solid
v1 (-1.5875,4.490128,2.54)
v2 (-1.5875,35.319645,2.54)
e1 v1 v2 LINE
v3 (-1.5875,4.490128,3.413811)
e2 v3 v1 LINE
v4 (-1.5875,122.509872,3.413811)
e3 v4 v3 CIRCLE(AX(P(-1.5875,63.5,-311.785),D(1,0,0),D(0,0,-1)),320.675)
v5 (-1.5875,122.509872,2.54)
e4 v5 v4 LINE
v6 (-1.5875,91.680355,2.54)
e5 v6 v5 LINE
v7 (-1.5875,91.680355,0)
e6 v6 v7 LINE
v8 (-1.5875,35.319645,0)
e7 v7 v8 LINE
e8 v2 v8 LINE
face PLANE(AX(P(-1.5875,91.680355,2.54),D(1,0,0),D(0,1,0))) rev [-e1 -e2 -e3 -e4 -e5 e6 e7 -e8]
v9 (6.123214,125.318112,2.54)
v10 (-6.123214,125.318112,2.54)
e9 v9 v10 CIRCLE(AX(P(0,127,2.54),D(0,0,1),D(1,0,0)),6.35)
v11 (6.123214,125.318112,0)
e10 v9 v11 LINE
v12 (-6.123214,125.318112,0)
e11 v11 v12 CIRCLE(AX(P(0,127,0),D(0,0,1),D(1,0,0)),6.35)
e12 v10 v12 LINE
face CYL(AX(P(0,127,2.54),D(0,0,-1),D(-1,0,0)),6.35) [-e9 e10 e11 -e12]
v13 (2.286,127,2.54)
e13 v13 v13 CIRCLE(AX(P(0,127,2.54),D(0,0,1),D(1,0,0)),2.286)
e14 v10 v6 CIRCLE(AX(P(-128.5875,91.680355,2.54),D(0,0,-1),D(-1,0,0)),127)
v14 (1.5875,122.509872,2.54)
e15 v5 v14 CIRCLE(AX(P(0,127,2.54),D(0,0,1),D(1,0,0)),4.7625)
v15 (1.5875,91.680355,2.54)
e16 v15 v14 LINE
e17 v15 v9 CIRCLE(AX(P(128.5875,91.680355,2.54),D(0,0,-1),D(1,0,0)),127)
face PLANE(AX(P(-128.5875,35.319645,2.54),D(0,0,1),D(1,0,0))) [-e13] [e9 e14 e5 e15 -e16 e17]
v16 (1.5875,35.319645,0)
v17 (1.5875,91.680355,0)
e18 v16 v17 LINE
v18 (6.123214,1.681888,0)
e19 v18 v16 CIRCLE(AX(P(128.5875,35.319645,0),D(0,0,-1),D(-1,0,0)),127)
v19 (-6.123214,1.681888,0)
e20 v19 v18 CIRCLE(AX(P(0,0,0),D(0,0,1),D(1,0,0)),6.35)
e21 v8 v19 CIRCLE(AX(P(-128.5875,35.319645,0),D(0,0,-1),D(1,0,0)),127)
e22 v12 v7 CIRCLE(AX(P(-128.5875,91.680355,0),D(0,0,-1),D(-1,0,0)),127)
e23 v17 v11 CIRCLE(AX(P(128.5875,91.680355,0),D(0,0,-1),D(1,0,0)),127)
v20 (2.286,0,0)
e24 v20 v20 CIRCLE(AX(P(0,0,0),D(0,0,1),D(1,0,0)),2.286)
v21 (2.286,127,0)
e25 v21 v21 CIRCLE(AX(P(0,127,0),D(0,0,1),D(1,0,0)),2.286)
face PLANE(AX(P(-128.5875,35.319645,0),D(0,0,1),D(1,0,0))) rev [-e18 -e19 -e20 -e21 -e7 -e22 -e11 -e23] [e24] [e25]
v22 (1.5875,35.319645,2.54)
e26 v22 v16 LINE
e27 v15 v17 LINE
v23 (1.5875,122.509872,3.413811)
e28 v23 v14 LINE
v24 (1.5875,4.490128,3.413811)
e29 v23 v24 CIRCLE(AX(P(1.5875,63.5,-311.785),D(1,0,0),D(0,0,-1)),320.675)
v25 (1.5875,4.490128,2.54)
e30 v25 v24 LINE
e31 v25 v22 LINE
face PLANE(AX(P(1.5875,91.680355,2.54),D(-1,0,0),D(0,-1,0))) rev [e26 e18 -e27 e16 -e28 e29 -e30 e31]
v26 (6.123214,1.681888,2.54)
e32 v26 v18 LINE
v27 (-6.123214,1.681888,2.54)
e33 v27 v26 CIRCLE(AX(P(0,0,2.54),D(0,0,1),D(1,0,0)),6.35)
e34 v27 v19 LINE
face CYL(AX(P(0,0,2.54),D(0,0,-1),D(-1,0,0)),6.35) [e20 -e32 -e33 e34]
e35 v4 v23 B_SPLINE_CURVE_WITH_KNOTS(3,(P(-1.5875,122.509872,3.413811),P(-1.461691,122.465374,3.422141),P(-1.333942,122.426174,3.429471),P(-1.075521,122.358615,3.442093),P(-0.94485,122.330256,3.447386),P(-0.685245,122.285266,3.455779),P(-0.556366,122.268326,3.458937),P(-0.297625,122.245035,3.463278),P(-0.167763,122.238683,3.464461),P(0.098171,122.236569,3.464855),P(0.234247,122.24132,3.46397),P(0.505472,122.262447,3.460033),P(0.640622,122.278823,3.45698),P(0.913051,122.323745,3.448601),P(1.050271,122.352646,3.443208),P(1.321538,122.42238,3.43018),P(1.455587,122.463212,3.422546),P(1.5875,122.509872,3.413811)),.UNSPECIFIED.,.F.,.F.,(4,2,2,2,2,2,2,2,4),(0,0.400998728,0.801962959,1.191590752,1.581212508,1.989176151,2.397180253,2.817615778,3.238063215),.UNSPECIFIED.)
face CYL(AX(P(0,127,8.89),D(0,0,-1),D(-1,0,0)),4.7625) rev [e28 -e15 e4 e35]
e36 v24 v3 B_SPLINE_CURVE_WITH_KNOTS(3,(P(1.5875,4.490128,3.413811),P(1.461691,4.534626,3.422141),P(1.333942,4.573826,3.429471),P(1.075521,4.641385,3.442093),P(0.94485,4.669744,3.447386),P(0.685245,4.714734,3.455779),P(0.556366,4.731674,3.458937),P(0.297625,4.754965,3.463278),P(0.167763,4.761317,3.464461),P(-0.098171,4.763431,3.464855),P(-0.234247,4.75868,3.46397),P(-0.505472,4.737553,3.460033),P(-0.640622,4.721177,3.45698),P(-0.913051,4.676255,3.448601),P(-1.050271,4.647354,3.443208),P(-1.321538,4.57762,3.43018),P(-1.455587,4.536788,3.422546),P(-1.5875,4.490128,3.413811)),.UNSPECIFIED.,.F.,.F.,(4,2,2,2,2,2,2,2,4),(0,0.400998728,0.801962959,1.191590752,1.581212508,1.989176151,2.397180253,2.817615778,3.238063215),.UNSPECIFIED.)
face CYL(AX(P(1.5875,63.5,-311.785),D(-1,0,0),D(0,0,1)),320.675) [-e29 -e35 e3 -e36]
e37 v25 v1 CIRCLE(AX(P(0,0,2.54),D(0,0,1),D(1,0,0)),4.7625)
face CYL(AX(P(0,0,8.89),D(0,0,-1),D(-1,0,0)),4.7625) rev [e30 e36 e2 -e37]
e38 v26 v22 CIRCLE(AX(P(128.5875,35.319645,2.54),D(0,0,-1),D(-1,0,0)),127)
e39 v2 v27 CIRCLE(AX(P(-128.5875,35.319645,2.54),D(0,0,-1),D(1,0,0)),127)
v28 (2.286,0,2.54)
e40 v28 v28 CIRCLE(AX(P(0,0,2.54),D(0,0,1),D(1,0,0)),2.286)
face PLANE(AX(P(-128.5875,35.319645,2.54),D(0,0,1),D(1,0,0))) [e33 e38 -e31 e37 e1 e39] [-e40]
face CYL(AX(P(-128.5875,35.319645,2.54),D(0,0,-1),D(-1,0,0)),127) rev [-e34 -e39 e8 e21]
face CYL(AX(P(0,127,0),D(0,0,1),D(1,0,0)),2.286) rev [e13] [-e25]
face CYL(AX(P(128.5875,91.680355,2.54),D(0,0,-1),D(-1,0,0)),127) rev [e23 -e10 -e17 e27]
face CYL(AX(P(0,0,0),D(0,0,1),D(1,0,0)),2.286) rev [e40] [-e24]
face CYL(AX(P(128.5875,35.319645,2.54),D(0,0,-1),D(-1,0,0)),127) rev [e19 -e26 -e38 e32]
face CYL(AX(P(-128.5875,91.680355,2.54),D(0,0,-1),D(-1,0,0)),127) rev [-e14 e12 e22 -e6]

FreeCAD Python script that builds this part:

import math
import FreeCAD as App
import Part
import Sketcher

V = App.Vector
Q = App.Units.Quantity

doc = App.newDocument("Part")
body = doc.addObject("PartDesign::Body", "Body")

sketch1 = body.newObject("Sketcher::SketchObject", "Sketch")
sketch1.AttachmentSupport = (doc.getObject("XY_Plane"), [""])
sketch1.MapMode = "FlatFace"
sketch1.addGeometry([
    Part.LineSegment(V(-2, 92, 0), V(-2, 35, 0)),
    Part.ArcOfCircle(Part.Circle(V(-129, 35, 0), V(0, 0, 1), 127), math.radians(-15.36), math.radians(0)),
    Part.ArcOfCircle(Part.Circle(V(0, 0, 0), V(0, 0, 1), 6), math.radians(165), math.radians(375)),
    Part.ArcOfCircle(Part.Circle(V(129, 35, 0), V(0, 0, 1), 127), math.radians(180), math.radians(195.36)),
    Part.LineSegment(V(2, 35, 0), V(2, 92, 0)),
    Part.ArcOfCircle(Part.Circle(V(129, 92, 0), V(0, 0, 1), 127), math.radians(164.64), math.radians(180)),
    Part.ArcOfCircle(Part.Circle(V(0, 127, 0), V(0, 0, 1), 6), math.radians(-15), math.radians(195)),
    Part.ArcOfCircle(Part.Circle(V(-129, 92, 0), V(0, 0, 1), 127), math.radians(0), math.radians(15.36)),
], False)
sketch1.addConstraint([
    Sketcher.Constraint("Tangent", 0, 2, 1, 2),
    Sketcher.Constraint("Tangent", 1, 1, 2, 1),
    Sketcher.Constraint("Tangent", 2, 2, 3, 2),
    Sketcher.Constraint("Tangent", 3, 1, 4, 1),
    Sketcher.Constraint("Tangent", 4, 2, 5, 2),
    Sketcher.Constraint("Tangent", 5, 1, 6, 1),
    Sketcher.Constraint("Tangent", 6, 2, 7, 2),
    Sketcher.Constraint("Tangent", 7, 1, 0, 1),
    Sketcher.Constraint("Vertical", 0),
    Sketcher.Constraint("Vertical", 4),
    Sketcher.Constraint("Coincident", 2, 3, -1, 1),
    Sketcher.Constraint("Equal", 1, 3),
    Sketcher.Constraint("Equal", 3, 5),
    Sketcher.Constraint("Equal", 2, 6),
    Sketcher.Constraint("Equal", 5, 7),
    Sketcher.Constraint("Symmetric", 5, 3, 7, 3, -2),
    Sketcher.Constraint("Radius", 1, Q("5 in")),
    Sketcher.Constraint("Radius", 2, Q("0.25 in")),
    Sketcher.Constraint("DistanceY", -1, 1, 6, 3, Q("5 in")),
    Sketcher.Constraint("DistanceX", 1, 3, -1, 1, Q("5.0625 in")),
])
pad1 = body.newObject("PartDesign::Pad", "Pad")
pad1.Profile = sketch1
pad1.Length = Q("0.1 in")

sketch2 = body.newObject("Sketcher::SketchObject", "Sketch001")
sketch2.AttachmentSupport = (doc.getObject("YZ_Plane"), [""])
sketch2.MapMode = "FlatFace"
sketch2.addGeometry([
    Part.LineSegment(V(0, 3, 0), V(127, 3, 0)),
    Part.ArcOfCircle(Part.Circle(V(64, -312, 0), V(0, 0, 1), 321), math.radians(79), math.radians(101)),
], False)
sketch2.addConstraint([
    Sketcher.Constraint("Coincident", 0, 1, 1, 2),
    Sketcher.Constraint("Coincident", 1, 1, 0, 2),
    Sketcher.Constraint("Horizontal", 0),
    Sketcher.Constraint("PointOnObject", 0, 1, -2),
    Sketcher.Constraint("DistanceX", 0, 1, 0, 2, Q("5 in")),
    Sketcher.Constraint("Radius", 1, Q("12.625 in")),
    Sketcher.Constraint("DistanceY", -1, 1, 0, 1, Q("0.1 in")),
])
pad2 = body.newObject("PartDesign::Pad", "Pad001")
pad2.Profile = sketch2
pad2.Length = Q("0.125 in")
pad2.Midplane = True

sketch3 = body.newObject("Sketcher::SketchObject", "Sketch002")
sketch3.AttachmentSupport = (doc.getObject("XY_Plane"), [""])
sketch3.MapMode = "FlatFace"
sketch3.AttachmentOffset = App.Placement(V(0, 0, 0.1 * 25.4), App.Rotation())
sketch3.addGeometry([
    Part.Circle(V(0, 0, 0), V(0, 0, 1), 4.8),
    Part.Circle(V(0, 127, 0), V(0, 0, 1), 4.8),
], False)
sketch3.addConstraint([
    Sketcher.Constraint("Coincident", 0, 3, -1, 1),
    Sketcher.Constraint("Equal", 0, 1),
    Sketcher.Constraint("PointOnObject", 1, 3, -2),
    Sketcher.Constraint("Diameter", 0, Q("0.375 in")),
    Sketcher.Constraint("DistanceY", -1, 1, 1, 3, Q("5 in")),
])
pocket1 = body.newObject("PartDesign::Pocket", "Pocket")
pocket1.Profile = sketch3
pocket1.Type = "ThroughAll"
pocket1.Reversed = True

sketch4 = body.newObject("Sketcher::SketchObject", "Sketch003")
sketch4.AttachmentSupport = (doc.getObject("XY_Plane"), [""])
sketch4.MapMode = "FlatFace"
sketch4.AttachmentOffset = App.Placement(V(0, 0, 0.1 * 25.4), App.Rotation())
sketch4.addGeometry([
    Part.Circle(V(0, 0, 0), V(0, 0, 1), 2.3),
    Part.Circle(V(0, 127, 0), V(0, 0, 1), 2.3),
], False)
sketch4.addConstraint([
    Sketcher.Constraint("Coincident", 0, 3, -1, 1),
    Sketcher.Constraint("Equal", 0, 1),
    Sketcher.Constraint("PointOnObject", 1, 3, -2),
    Sketcher.Constraint("Diameter", 0, Q("0.18 in")),
    Sketcher.Constraint("DistanceY", -1, 1, 1, 3, Q("5 in")),
])
pocket2 = body.newObject("PartDesign::Pocket", "Pocket001")
pocket2.Profile = sketch4
pocket2.Type = "ThroughAll"

doc.recompute()
